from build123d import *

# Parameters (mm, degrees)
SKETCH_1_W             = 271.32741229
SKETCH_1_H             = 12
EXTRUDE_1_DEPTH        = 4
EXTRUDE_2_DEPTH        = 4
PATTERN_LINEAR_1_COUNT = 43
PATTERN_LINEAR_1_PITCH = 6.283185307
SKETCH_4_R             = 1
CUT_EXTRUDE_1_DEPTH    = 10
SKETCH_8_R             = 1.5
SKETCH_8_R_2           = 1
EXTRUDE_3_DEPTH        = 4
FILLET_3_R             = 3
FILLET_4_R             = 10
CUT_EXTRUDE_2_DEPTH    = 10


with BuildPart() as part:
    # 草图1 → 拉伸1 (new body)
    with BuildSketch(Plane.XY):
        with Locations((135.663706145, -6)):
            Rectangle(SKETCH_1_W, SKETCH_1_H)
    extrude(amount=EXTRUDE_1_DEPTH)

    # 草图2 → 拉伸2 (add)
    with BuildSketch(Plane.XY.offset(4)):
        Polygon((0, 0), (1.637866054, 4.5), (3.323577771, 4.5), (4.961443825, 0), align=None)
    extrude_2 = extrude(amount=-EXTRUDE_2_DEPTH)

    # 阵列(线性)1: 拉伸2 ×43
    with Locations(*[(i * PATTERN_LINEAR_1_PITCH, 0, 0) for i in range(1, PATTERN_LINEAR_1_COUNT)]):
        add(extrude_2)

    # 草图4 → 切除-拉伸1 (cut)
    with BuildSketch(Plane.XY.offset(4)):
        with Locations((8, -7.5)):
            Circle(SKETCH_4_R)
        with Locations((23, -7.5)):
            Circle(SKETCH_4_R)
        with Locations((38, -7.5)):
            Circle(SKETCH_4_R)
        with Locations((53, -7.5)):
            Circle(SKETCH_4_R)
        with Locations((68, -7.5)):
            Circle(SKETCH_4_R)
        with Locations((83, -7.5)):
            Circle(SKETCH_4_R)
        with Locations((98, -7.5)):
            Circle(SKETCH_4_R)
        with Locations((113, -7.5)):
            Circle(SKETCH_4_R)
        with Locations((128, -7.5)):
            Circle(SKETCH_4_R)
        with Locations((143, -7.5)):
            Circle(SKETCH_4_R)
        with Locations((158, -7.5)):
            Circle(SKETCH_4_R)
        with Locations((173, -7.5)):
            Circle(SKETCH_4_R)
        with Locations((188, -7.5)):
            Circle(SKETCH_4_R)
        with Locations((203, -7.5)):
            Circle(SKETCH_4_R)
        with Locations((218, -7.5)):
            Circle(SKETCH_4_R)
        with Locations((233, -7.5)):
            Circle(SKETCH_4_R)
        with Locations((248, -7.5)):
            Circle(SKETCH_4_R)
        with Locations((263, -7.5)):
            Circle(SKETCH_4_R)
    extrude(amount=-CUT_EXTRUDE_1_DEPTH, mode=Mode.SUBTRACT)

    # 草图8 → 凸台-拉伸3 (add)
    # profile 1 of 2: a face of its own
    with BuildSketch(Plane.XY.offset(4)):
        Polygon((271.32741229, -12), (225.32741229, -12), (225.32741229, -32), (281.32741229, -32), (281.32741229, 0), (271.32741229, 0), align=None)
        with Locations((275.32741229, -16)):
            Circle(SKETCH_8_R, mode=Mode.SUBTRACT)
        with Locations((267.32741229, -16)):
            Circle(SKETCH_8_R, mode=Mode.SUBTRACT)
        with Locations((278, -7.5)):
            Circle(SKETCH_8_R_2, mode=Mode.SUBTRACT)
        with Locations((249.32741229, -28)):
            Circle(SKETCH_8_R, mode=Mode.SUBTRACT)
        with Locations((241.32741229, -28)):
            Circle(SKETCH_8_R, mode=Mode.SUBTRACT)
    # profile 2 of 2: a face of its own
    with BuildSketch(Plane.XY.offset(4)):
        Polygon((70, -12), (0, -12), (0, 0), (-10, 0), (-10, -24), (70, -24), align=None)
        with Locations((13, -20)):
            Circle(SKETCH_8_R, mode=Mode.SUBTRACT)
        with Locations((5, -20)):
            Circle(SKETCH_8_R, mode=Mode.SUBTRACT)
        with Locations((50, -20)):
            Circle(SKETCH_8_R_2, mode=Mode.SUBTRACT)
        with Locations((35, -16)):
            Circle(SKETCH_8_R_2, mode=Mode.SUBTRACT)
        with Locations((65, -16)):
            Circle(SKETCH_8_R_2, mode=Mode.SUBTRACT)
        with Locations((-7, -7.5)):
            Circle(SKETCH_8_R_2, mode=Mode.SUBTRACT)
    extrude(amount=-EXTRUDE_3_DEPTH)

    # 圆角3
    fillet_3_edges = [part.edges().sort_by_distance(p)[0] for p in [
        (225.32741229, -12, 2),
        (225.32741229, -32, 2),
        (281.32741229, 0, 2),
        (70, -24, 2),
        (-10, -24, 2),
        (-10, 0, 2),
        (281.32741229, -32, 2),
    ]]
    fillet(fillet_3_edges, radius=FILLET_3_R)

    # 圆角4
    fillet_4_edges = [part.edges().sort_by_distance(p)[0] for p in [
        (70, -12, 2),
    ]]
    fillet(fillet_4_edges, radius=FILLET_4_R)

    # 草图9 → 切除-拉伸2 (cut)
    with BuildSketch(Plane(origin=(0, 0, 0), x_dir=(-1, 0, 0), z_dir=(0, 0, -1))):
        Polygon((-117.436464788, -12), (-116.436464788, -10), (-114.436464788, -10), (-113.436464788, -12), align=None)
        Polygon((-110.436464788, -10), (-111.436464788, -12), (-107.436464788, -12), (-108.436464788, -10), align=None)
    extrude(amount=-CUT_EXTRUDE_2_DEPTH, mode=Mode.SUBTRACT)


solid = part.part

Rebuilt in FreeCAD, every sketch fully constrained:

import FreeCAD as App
import Part
import Sketcher
Q = App.Units.Quantity


def edges_at(feature, points):
    """Names of the edges that pass closest to the given points."""
    edges = feature.Shape.Edges
    near = lambda p: min(range(len(edges)), key=lambda i: edges[i].distToShape(Part.Vertex(*p))[0])
    return sorted({f"Edge{near(p) + 1}" for p in points})

doc = App.newDocument("Part")
params = doc.addObject("Spreadsheet::Sheet", "Params")
for row, (alias, value) in enumerate([
    ("sketch1_height", "12 mm"),
    ("pad1_length", "4 mm"),
    ("pad2_length", "4 mm"),
    ("linearpattern_pitch", "6.283185 mm"),
    ("sketch3_diameter", "2 mm"),
    ("pocket1_length", "10 mm"),
    ("sketch4_diameter", "3 mm"),
    ("sketch4_diameter2", "2 mm"),
    ("sketch4_width", "46 mm"),
    ("sketch4_width2", "56 mm"),
    ("sketch4_width3", "70 mm"),
    ("pad3_length", "4 mm"),
    ("fillet_radius", "3 mm"),
    ("fillet2_radius", "10 mm"),
    ("sketch5_width", "4 mm"),
    ("sketch5_width2", "2 mm"),
    ("pocket2_length", "10 mm"),
], start=1):
    params.set(f"A{row}", alias)
    params.set(f"B{row}", "=" + value)
    params.setAlias(f"B{row}", alias)

body = doc.addObject("PartDesign::Body", "Body")

sketch1 = body.newObject("Sketcher::SketchObject", "Sketch")
sketch1.AttachmentSupport = (doc.getObject("XY_Plane"), [""])
sketch1.MapMode = "FlatFace"
sketch1.addGeometry([
    Part.LineSegment(App.Vector(0, 0, 0), App.Vector(0, -12, 0)),
    Part.LineSegment(App.Vector(0, -12, 0), App.Vector(271, -12, 0)),
    Part.LineSegment(App.Vector(271, -12, 0), App.Vector(271, 0, 0)),
    Part.LineSegment(App.Vector(271, 0, 0), App.Vector(0, 0, 0)),
], False)
sketch1.addConstraint([
    Sketcher.Constraint("Coincident", 0, 2, 1, 1),
    Sketcher.Constraint("Coincident", 1, 2, 2, 1),
    Sketcher.Constraint("Coincident", 2, 2, 3, 1),
    Sketcher.Constraint("Coincident", 3, 2, 0, 1),
    Sketcher.Constraint("Vertical", 0),
    Sketcher.Constraint("Horizontal", 1),
    Sketcher.Constraint("Vertical", 2),
    Sketcher.Constraint("Horizontal", 3),
    Sketcher.Constraint("Coincident", 3, 2, -1, 1),
    Sketcher.Constraint("DistanceY", 0, 2, 0, 1, Q("12 mm")),
    Sketcher.Constraint("DistanceX", 1, 1, 1, 2, Q("271.327412 mm")),
])
sketch1.setExpression("Constraints[9]", "Params.sketch1_height")
pad1 = body.newObject("PartDesign::Pad", "Pad")
pad1.Profile = sketch1
pad1.setExpression("Length", "Params.pad1_length")

sketch2 = body.newObject("Sketcher::SketchObject", "Sketch001")
sketch2.AttachmentSupport = (doc.getObject("XY_Plane"), [""])
sketch2.MapMode = "FlatFace"
sketch2.AttachmentOffset = App.Placement(App.Vector(0, 0, 4), App.Rotation())
sketch2.addGeometry([
    Part.LineSegment(App.Vector(1.6, 4.5, 0), App.Vector(0, 0, 0)),
    Part.LineSegment(App.Vector(0, 0, 0), App.Vector(5, 0, 0)),
    Part.LineSegment(App.Vector(5, 0, 0), App.Vector(3.3, 4.5, 0)),
    Part.LineSegment(App.Vector(3.3, 4.5, 0), App.Vector(1.6, 4.5, 0)),
], False)
sketch2.addConstraint([
    Sketcher.Constraint("Coincident", 0, 2, 1, 1),
    Sketcher.Constraint("Coincident", 1, 2, 2, 1),
    Sketcher.Constraint("Coincident", 2, 2, 3, 1),
    Sketcher.Constraint("Coincident", 3, 2, 0, 1),
    Sketcher.Constraint("Horizontal", 1),
    Sketcher.Constraint("Horizontal", 3),
    Sketcher.Constraint("Coincident", 0, 2, -1, 1),
    Sketcher.Constraint("Equal", 0, 2),
    Sketcher.Constraint("Angle", 0, Q("-110 deg")),
    Sketcher.Constraint("DistanceY", -1, 1, 2, 2, Q("4.5 mm")),
    Sketcher.Constraint("DistanceX", 3, 2, 3, 1, Q("1.685712 mm")),
])
pad2 = body.newObject("PartDesign::Pad", "Pad001")
pad2.Profile = sketch2
pad2.setExpression("Length", "Params.pad2_length")
pad2.Reversed = True
doc.recompute()

linearpattern = body.newObject("PartDesign::LinearPattern", "LinearPattern")
linearpattern.Originals = [pad2]
linearpattern.Direction = (doc.getObject("X_Axis"), [""])
linearpattern.Mode = "offset"
linearpattern.setExpression("Offset", "Params.linearpattern_pitch")
linearpattern.Occurrences = 43
body.Tip = linearpattern

sketch3 = body.newObject("Sketcher::SketchObject", "Sketch002")
sketch3.AttachmentSupport = (doc.getObject("XY_Plane"), [""])
sketch3.MapMode = "FlatFace"
sketch3.AttachmentOffset = App.Placement(App.Vector(0, 0, 4), App.Rotation())
sketch3.addGeometry([
    Part.Circle(App.Vector(8, -7.5, 0), App.Vector(0, 0, 1), 1),
    Part.Circle(App.Vector(23, -7.5, 0), App.Vector(0, 0, 1), 1),
    Part.Circle(App.Vector(38, -7.5, 0), App.Vector(0, 0, 1), 1),
    Part.Circle(App.Vector(53, -7.5, 0), App.Vector(0, 0, 1), 1),
    Part.Circle(App.Vector(68, -7.5, 0), App.Vector(0, 0, 1), 1),
    Part.Circle(App.Vector(83, -7.5, 0), App.Vector(0, 0, 1), 1),
    Part.Circle(App.Vector(98, -7.5, 0), App.Vector(0, 0, 1), 1),
    Part.Circle(App.Vector(113, -7.5, 0), App.Vector(0, 0, 1), 1),
    Part.Circle(App.Vector(128, -7.5, 0), App.Vector(0, 0, 1), 1),
    Part.Circle(App.Vector(143, -7.5, 0), App.Vector(0, 0, 1), 1),
    Part.Circle(App.Vector(158, -7.5, 0), App.Vector(0, 0, 1), 1),
    Part.Circle(App.Vector(173, -7.5, 0), App.Vector(0, 0, 1), 1),
    Part.Circle(App.Vector(188, -7.5, 0), App.Vector(0, 0, 1), 1),
    Part.Circle(App.Vector(203, -7.5, 0), App.Vector(0, 0, 1), 1),
    Part.Circle(App.Vector(218, -7.5, 0), App.Vector(0, 0, 1), 1),
    Part.Circle(App.Vector(233, -7.5, 0), App.Vector(0, 0, 1), 1),
    Part.Circle(App.Vector(248, -7.5, 0), App.Vector(0, 0, 1), 1),
    Part.Circle(App.Vector(263, -7.5, 0), App.Vector(0, 0, 1), 1),
], False)
sketch3.addConstraint([
    Sketcher.Constraint("Equal", 0, 1),
    Sketcher.Constraint("Equal", 1, 2),
    Sketcher.Constraint("Equal", 2, 3),
    Sketcher.Constraint("Equal", 3, 4),
    Sketcher.Constraint("Equal", 4, 5),
    Sketcher.Constraint("Equal", 5, 6),
    Sketcher.Constraint("Equal", 6, 7),
    Sketcher.Constraint("Equal", 7, 8),
    Sketcher.Constraint("Equal", 8, 9),
    Sketcher.Constraint("Equal", 9, 10),
    Sketcher.Constraint("Equal", 10, 11),
    Sketcher.Constraint("Equal", 11, 12),
    Sketcher.Constraint("Equal", 12, 13),
    Sketcher.Constraint("Equal", 13, 14),
    Sketcher.Constraint("Equal", 14, 15),
    Sketcher.Constraint("Equal", 15, 16),
    Sketcher.Constraint("Equal", 16, 17),
    Sketcher.Constraint("Horizontal", 0, 3, 1, 3),
    Sketcher.Constraint("Horizontal", 1, 3, 2, 3),
    Sketcher.Constraint("Horizontal", 2, 3, 3, 3),
    Sketcher.Constraint("Horizontal", 3, 3, 4, 3),
    Sketcher.Constraint("Horizontal", 4, 3, 5, 3),
    Sketcher.Constraint("Horizontal", 5, 3, 6, 3),
    Sketcher.Constraint("Horizontal", 6, 3, 7, 3),
    Sketcher.Constraint("Horizontal", 7, 3, 8, 3),
    Sketcher.Constraint("Horizontal", 8, 3, 9, 3),
    Sketcher.Constraint("Horizontal", 9, 3, 10, 3),
    Sketcher.Constraint("Horizontal", 10, 3, 11, 3),
    Sketcher.Constraint("Horizontal", 11, 3, 12, 3),
    Sketcher.Constraint("Horizontal", 12, 3, 13, 3),
    Sketcher.Constraint("Horizontal", 13, 3, 14, 3),
    Sketcher.Constraint("Horizontal", 14, 3, 15, 3),
    Sketcher.Constraint("Horizontal", 15, 3, 16, 3),
    Sketcher.Constraint("Horizontal", 16, 3, 17, 3),
    Sketcher.Constraint("Diameter", 0, Q("2 mm")),
    Sketcher.Constraint("DistanceX", -1, 1, 0, 3, Q("8 mm")),
    Sketcher.Constraint("DistanceX", -1, 1, 1, 3, Q("23 mm")),
    Sketcher.Constraint("DistanceX", -1, 1, 2, 3, Q("38 mm")),
    Sketcher.Constraint("DistanceX", -1, 1, 3, 3, Q("53 mm")),
    Sketcher.Constraint("DistanceX", -1, 1, 4, 3, Q("68 mm")),
    Sketcher.Constraint("DistanceX", -1, 1, 5, 3, Q("83 mm")),
    Sketcher.Constraint("DistanceX", -1, 1, 6, 3, Q("98 mm")),
    Sketcher.Constraint("DistanceX", -1, 1, 7, 3, Q("113 mm")),
    Sketcher.Constraint("DistanceX", -1, 1, 8, 3, Q("128 mm")),
    Sketcher.Constraint("DistanceX", -1, 1, 9, 3, Q("143 mm")),
    Sketcher.Constraint("DistanceX", -1, 1, 10, 3, Q("158 mm")),
    Sketcher.Constraint("DistanceX", -1, 1, 11, 3, Q("173 mm")),
    Sketcher.Constraint("DistanceX", -1, 1, 12, 3, Q("188 mm")),
    Sketcher.Constraint("DistanceX", -1, 1, 13, 3, Q("203 mm")),
    Sketcher.Constraint("DistanceX", -1, 1, 14, 3, Q("218 mm")),
    Sketcher.Constraint("DistanceX", -1, 1, 15, 3, Q("233 mm")),
    Sketcher.Constraint("DistanceX", -1, 1, 16, 3, Q("248 mm")),
    Sketcher.Constraint("DistanceX", -1, 1, 17, 3, Q("263 mm")),
    Sketcher.Constraint("DistanceY", 0, 3, -1, 1, Q("7.5 mm")),
])
sketch3.setExpression("Constraints[34]", "Params.sketch3_diameter")
pocket1 = body.newObject("PartDesign::Pocket", "Pocket")
pocket1.Profile = sketch3
pocket1.setExpression("Length", "Params.pocket1_length")

sketch4 = body.newObject("Sketcher::SketchObject", "Sketch003")
sketch4.AttachmentSupport = (doc.getObject("XY_Plane"), [""])
sketch4.MapMode = "FlatFace"
sketch4.AttachmentOffset = App.Placement(App.Vector(0, 0, 4), App.Rotation())
sketch4.addGeometry([
    Part.LineSegment(App.Vector(271.3, -12, 0), App.Vector(225.3, -12, 0)),
    Part.LineSegment(App.Vector(225.3, -12, 0), App.Vector(225.3, -32, 0)),
    Part.LineSegment(App.Vector(225.3, -32, 0), App.Vector(281.3, -32, 0)),
    Part.LineSegment(App.Vector(281.3, -32, 0), App.Vector(281.3, 0, 0)),
    Part.LineSegment(App.Vector(281.3, 0, 0), App.Vector(271.3, 0, 0)),
    Part.LineSegment(App.Vector(271.3, 0, 0), App.Vector(271.3, -12, 0)),
    Part.Circle(App.Vector(241.3, -28, 0), App.Vector(0, 0, 1), 1.5),
    Part.Circle(App.Vector(249.3, -28, 0), App.Vector(0, 0, 1), 1.5),
    Part.Circle(App.Vector(267.3, -16, 0), App.Vector(0, 0, 1), 1.5),
    Part.Circle(App.Vector(275.3, -16, 0), App.Vector(0, 0, 1), 1.5),
    Part.Circle(App.Vector(278, -7.5, 0), App.Vector(0, 0, 1), 1),
    Part.LineSegment(App.Vector(70, -12, 0), App.Vector(0, -12, 0)),
    Part.LineSegment(App.Vector(0, -12, 0), App.Vector(0, 0, 0)),
    Part.LineSegment(App.Vector(0, 0, 0), App.Vector(-10, 0, 0)),
    Part.LineSegment(App.Vector(-10, 0, 0), App.Vector(-10, -24, 0)),
    Part.LineSegment(App.Vector(-10, -24, 0), App.Vector(70, -24, 0)),
    Part.LineSegment(App.Vector(70, -24, 0), App.Vector(70, -12, 0)),
    Part.Circle(App.Vector(5, -20, 0), App.Vector(0, 0, 1), 1.5),
    Part.Circle(App.Vector(13, -20, 0), App.Vector(0, 0, 1), 1.5),
    Part.Circle(App.Vector(50, -20, 0), App.Vector(0, 0, 1), 1),
    Part.Circle(App.Vector(35, -16, 0), App.Vector(0, 0, 1), 1),
    Part.Circle(App.Vector(65, -16, 0), App.Vector(0, 0, 1), 1),
    Part.Circle(App.Vector(-7, -7.5, 0), App.Vector(0, 0, 1), 1),
], False)
sketch4.addConstraint([
    Sketcher.Constraint("Coincident", 0, 2, 1, 1),
    Sketcher.Constraint("Coincident", 1, 2, 2, 1),
    Sketcher.Constraint("Coincident", 2, 2, 3, 1),
    Sketcher.Constraint("Coincident", 3, 2, 4, 1),
    Sketcher.Constraint("Coincident", 4, 2, 5, 1),
    Sketcher.Constraint("Coincident", 5, 2, 0, 1),
    Sketcher.Constraint("Coincident", 11, 2, 12, 1),
    Sketcher.Constraint("Coincident", 12, 2, 13, 1),
    Sketcher.Constraint("Coincident", 13, 2, 14, 1),
    Sketcher.Constraint("Coincident", 14, 2, 15, 1),
    Sketcher.Constraint("Coincident", 15, 2, 16, 1),
    Sketcher.Constraint("Coincident", 16, 2, 11, 1),
    Sketcher.Constraint("Horizontal", 0),
    Sketcher.Constraint("Vertical", 1),
    Sketcher.Constraint("Horizontal", 2),
    Sketcher.Constraint("Vertical", 3),
    Sketcher.Constraint("Horizontal", 4),
    Sketcher.Constraint("Vertical", 5),
    Sketcher.Constraint("Horizontal", 11),
    Sketcher.Constraint("Vertical", 12),
    Sketcher.Constraint("Horizontal", 13),
    Sketcher.Constraint("Vertical", 14),
    Sketcher.Constraint("Horizontal", 15),
    Sketcher.Constraint("Vertical", 16),
    Sketcher.Constraint("Coincident", 12, 2, -1, 1),
    Sketcher.Constraint("Equal", 6, 7),
    Sketcher.Constraint("Equal", 7, 8),
    Sketcher.Constraint("Equal", 8, 9),
    Sketcher.Constraint("Equal", 9, 17),
    Sketcher.Constraint("Equal", 17, 18),
    Sketcher.Constraint("Equal", 10, 19),
    Sketcher.Constraint("Equal", 19, 20),
    Sketcher.Constraint("Equal", 20, 21),
    Sketcher.Constraint("Equal", 21, 22),
    Sketcher.Constraint("PointOnObject", 3, 2, -1),
    Sketcher.Constraint("Horizontal", 6, 3, 7, 3),
    Sketcher.Constraint("Horizontal", 8, 3, 9, 3),
    Sketcher.Constraint("Horizontal", 17, 3, 18, 3),
    Sketcher.Constraint("Horizontal", 18, 3, 19, 3),
    Sketcher.Constraint("Horizontal", 9, 3, 20, 3),
    Sketcher.Constraint("Horizontal", 20, 3, 21, 3),
    Sketcher.Constraint("Horizontal", 10, 3, 22, 3),
    Sketcher.Constraint("Horizontal", 5, 2, 11, 2),
    Sketcher.Constraint("Equal", 4, 13),
    Sketcher.Constraint("Equal", 12, 16),
    Sketcher.Constraint("Diameter", 6, Q("3 mm")),
    Sketcher.Constraint("Diameter", 10, Q("2 mm")),
    Sketcher.Constraint("DistanceX", 0, 2, 0, 1, Q("46 mm")),
    Sketcher.Constraint("DistanceX", 2, 1, 2, 2, Q("56 mm")),
    Sketcher.Constraint("DistanceX", 11, 2, 11, 1, Q("70 mm")),
    Sketcher.Constraint("DistanceY", 1, 2, 1, 1, Q("20 mm")),
    Sketcher.Constraint("DistanceY", 3, 1, 3, 2, Q("32 mm")),
    Sketcher.Constraint("DistanceY", 6, 3, -1, 1, Q("28 mm")),
    Sketcher.Constraint("DistanceY", 8, 3, -1, 1, Q("16 mm")),
    Sketcher.Constraint("DistanceX", -1, 1, 10, 3, Q("278 mm")),
    Sketcher.Constraint("DistanceX", -1, 1, 17, 3, Q("5 mm")),
    Sketcher.Constraint("DistanceY", 17, 3, -1, 1, Q("20 mm")),
    Sketcher.Constraint("DistanceX", -1, 1, 18, 3, Q("13 mm")),
    Sketcher.Constraint("DistanceX", -1, 1, 19, 3, Q("50 mm")),
    Sketcher.Constraint("DistanceX", -1, 1, 20, 3, Q("35 mm")),
    Sketcher.Constraint("DistanceX", -1, 1, 21, 3, Q("65 mm")),
    Sketcher.Constraint("DistanceX", 22, 3, -1, 1, Q("7 mm")),
    Sketcher.Constraint("DistanceX", 6, 3, 7, 3, Q("8 mm")),
    Sketcher.Constraint("DistanceX", 7, 3, 8, 3, Q("18 mm")),
    Sketcher.Constraint("DistanceX", 8, 3, 9, 3, Q("8 mm")),
    Sketcher.Constraint("DistanceX", 0, 2, 6, 3, Q("16 mm")),
    Sketcher.Constraint("DistanceY", 10, 3, -1, 1, Q("7.5 mm")),
    Sketcher.Constraint("DistanceX", -1, 1, 6, 3, Q("241.327412 mm")),
])
sketch4.setExpression("Constraints[45]", "Params.sketch4_diameter")
sketch4.setExpression("Constraints[46]", "Params.sketch4_diameter2")
sketch4.setExpression("Constraints[47]", "Params.sketch4_width")
sketch4.setExpression("Constraints[48]", "Params.sketch4_width2")
sketch4.setExpression("Constraints[49]", "Params.sketch4_width3")
pad3 = body.newObject("PartDesign::Pad", "Pad002")
pad3.Profile = sketch4
pad3.setExpression("Length", "Params.pad3_length")
pad3.Reversed = True
doc.recompute()

fillet = body.newObject("PartDesign::Fillet", "Fillet")
fillet.Base = (pad3, edges_at(pad3, [
    (225.327, -12, 2),
    (225.327, -32, 2),
    (281.327, 0, 2),
    (70, -24, 2),
    (-10, -24, 2),
    (-10, 0, 2),
    (281.327, -32, 2),
]))
fillet.setExpression("Radius", "Params.fillet_radius")
doc.recompute()

fillet2 = body.newObject("PartDesign::Fillet", "Fillet001")
fillet2.Base = (fillet, edges_at(fillet, [(70, -12, 2)]))
fillet2.setExpression("Radius", "Params.fillet2_radius")

sketch5 = body.newObject("Sketcher::SketchObject", "Sketch004")
sketch5.AttachmentSupport = (doc.getObject("XY_Plane"), [""])
sketch5.MapMode = "FlatFace"
sketch5.addGeometry([
    Part.LineSegment(App.Vector(116.4, -10, 0), App.Vector(117.4, -12, 0)),
    Part.LineSegment(App.Vector(117.4, -12, 0), App.Vector(113.4, -12, 0)),
    Part.LineSegment(App.Vector(113.4, -12, 0), App.Vector(114.4, -10, 0)),
    Part.LineSegment(App.Vector(114.4, -10, 0), App.Vector(116.4, -10, 0)),
    Part.LineSegment(App.Vector(110.4, -10, 0), App.Vector(111.4, -12, 0)),
    Part.LineSegment(App.Vector(111.4, -12, 0), App.Vector(107.4, -12, 0)),
    Part.LineSegment(App.Vector(107.4, -12, 0), App.Vector(108.4, -10, 0)),
    Part.LineSegment(App.Vector(108.4, -10, 0), App.Vector(110.4, -10, 0)),
], False)
sketch5.addConstraint([
    Sketcher.Constraint("Coincident", 0, 2, 1, 1),
    Sketcher.Constraint("Coincident", 1, 2, 2, 1),
    Sketcher.Constraint("Coincident", 2, 2, 3, 1),
    Sketcher.Constraint("Coincident", 3, 2, 0, 1),
    Sketcher.Constraint("Coincident", 4, 2, 5, 1),
    Sketcher.Constraint("Coincident", 5, 2, 6, 1),
    Sketcher.Constraint("Coincident", 6, 2, 7, 1),
    Sketcher.Constraint("Coincident", 7, 2, 4, 1),
    Sketcher.Constraint("Horizontal", 1),
    Sketcher.Constraint("Horizontal", 3),
    Sketcher.Constraint("Horizontal", 5),
    Sketcher.Constraint("Horizontal", 7),
    Sketcher.Constraint("Parallel", 0, 4),
    Sketcher.Constraint("Parallel", 2, 6),
    Sketcher.Constraint("Horizontal", 1, 2, 4, 2),
    Sketcher.Constraint("Horizontal", 3, 2, 6, 2),
    Sketcher.Constraint("Equal", 1, 5),
    Sketcher.Constraint("Equal", 0, 2),
    Sketcher.Constraint("DistanceX", 1, 2, 1, 1, Q("4 mm")),
    Sketcher.Constraint("DistanceX", 3, 1, 3, 2, Q("2 mm")),
    Sketcher.Constraint("DistanceY", 0, 2, -1, 1, Q("12 mm")),
    Sketcher.Constraint("DistanceY", 2, 2, -1, 1, Q("10 mm")),
    Sketcher.Constraint("DistanceX", 4, 2, 1, 2, Q("2 mm")),
    Sketcher.Constraint("DistanceX", -1, 1, 0, 2, Q("117.436465 mm")),
])
sketch5.setExpression("Constraints[18]", "Params.sketch5_width")
sketch5.setExpression("Constraints[19]", "Params.sketch5_width2")
pocket2 = body.newObject("PartDesign::Pocket", "Pocket001")
pocket2.Profile = sketch5
pocket2.setExpression("Length", "Params.pocket2_length")
pocket2.Reversed = True

doc.recompute()
